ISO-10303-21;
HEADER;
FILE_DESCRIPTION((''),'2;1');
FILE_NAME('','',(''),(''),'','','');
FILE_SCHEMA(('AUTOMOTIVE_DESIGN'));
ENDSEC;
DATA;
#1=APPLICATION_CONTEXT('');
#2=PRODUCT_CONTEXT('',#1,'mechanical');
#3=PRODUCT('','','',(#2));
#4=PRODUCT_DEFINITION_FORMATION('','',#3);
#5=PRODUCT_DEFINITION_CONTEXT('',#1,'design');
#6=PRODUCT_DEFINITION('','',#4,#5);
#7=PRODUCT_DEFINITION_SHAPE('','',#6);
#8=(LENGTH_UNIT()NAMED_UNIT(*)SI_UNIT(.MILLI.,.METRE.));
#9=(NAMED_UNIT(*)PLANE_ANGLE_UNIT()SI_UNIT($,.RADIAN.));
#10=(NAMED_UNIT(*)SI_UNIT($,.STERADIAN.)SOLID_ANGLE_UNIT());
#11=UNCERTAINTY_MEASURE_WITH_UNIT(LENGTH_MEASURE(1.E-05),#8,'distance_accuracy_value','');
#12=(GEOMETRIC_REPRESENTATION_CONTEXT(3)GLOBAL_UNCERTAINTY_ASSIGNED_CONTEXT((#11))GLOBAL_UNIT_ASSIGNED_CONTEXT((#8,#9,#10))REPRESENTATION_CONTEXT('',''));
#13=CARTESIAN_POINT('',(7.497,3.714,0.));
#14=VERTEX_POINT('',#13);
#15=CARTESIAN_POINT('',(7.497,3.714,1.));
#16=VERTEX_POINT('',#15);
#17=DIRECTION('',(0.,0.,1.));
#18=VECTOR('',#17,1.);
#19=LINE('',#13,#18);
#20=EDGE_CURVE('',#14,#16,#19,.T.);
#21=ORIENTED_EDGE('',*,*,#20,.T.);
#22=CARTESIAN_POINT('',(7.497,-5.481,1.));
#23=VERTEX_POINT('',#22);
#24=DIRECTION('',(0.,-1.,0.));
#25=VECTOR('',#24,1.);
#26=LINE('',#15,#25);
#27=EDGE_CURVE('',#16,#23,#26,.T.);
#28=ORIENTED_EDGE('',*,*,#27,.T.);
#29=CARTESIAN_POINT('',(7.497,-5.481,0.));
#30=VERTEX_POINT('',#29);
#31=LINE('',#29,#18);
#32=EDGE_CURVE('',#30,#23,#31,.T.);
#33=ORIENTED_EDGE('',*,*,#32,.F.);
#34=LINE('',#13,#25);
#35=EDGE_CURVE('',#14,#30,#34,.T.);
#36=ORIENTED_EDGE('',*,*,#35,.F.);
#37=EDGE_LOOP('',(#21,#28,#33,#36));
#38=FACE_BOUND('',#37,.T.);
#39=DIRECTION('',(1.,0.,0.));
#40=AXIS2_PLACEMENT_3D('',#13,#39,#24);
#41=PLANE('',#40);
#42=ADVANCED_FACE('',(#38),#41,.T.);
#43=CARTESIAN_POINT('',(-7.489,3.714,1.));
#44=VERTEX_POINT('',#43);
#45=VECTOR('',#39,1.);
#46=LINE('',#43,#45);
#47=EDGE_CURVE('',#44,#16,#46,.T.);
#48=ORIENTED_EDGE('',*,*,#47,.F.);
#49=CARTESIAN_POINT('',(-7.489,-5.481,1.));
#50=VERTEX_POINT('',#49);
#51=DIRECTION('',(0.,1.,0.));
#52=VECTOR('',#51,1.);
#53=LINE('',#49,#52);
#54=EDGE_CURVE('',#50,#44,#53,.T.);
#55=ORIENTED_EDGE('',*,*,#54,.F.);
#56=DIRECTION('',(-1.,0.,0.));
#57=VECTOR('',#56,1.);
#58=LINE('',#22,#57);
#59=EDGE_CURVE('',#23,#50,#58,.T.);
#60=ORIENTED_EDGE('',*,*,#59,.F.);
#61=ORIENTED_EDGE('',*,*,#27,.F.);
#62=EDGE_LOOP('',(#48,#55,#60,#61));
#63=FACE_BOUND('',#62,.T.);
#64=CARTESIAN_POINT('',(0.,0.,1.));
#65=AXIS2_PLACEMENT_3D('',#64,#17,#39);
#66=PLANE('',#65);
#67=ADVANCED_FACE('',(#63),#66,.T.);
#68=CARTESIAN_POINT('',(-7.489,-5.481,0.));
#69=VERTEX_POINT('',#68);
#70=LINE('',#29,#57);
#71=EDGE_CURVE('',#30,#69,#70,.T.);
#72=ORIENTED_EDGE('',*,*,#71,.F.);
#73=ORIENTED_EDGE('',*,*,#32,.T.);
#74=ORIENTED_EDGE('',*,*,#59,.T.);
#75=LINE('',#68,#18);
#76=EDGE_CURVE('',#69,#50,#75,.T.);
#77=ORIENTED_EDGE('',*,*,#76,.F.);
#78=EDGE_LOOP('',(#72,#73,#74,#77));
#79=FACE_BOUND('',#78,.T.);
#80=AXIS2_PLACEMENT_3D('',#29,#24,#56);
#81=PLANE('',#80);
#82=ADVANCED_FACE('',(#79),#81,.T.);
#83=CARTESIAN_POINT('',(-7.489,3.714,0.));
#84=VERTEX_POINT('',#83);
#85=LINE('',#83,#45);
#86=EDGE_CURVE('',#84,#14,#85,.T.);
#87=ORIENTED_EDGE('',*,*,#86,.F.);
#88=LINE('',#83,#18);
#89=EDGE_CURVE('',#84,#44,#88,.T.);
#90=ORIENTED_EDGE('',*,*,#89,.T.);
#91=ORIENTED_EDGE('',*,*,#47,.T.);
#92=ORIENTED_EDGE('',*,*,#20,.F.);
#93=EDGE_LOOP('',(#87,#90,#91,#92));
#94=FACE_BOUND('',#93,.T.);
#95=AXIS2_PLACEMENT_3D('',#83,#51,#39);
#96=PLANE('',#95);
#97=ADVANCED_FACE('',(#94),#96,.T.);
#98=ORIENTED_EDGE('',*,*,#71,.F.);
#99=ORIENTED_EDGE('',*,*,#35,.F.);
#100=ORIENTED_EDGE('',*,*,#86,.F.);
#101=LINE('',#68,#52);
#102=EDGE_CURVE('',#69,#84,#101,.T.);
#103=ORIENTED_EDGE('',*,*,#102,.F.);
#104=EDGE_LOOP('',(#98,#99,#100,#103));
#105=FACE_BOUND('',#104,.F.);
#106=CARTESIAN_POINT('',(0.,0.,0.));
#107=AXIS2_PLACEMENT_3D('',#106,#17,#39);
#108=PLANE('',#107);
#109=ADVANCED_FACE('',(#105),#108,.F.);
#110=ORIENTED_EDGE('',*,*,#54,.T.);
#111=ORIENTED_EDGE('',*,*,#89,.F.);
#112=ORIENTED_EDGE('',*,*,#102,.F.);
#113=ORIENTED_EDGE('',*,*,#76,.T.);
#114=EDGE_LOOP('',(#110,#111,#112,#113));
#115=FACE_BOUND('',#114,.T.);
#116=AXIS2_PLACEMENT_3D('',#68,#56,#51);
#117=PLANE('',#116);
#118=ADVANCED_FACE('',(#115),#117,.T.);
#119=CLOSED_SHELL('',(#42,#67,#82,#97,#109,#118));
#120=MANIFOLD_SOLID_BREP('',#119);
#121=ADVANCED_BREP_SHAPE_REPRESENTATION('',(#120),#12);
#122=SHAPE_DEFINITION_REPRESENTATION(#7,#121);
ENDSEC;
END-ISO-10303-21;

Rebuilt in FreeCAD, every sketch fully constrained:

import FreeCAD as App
import Part
import Sketcher

V = App.Vector
Q = App.Units.Quantity

doc = App.newDocument("Part")
body = doc.addObject("PartDesign::Body", "Body")

sketch1 = body.newObject("Sketcher::SketchObject", "Sketch")
sketch1.AttachmentSupport = (doc.getObject("XY_Plane"), [""])
sketch1.MapMode = "FlatFace"
sketch1.addGeometry([
    Part.LineSegment(V(7, 4, 0), V(-7, 4, 0)),
    Part.LineSegment(V(-7, 4, 0), V(-7, -5, 0)),
    Part.LineSegment(V(-7, -5, 0), V(7, -5, 0)),
    Part.LineSegment(V(7, -5, 0), V(7, 4, 0)),
], False)
sketch1.addConstraint([
    Sketcher.Constraint("Coincident", 0, 2, 1, 1),
    Sketcher.Constraint("Coincident", 1, 2, 2, 1),
    Sketcher.Constraint("Coincident", 2, 2, 3, 1),
    Sketcher.Constraint("Coincident", 3, 2, 0, 1),
    Sketcher.Constraint("Horizontal", 0),
    Sketcher.Constraint("Vertical", 1),
    Sketcher.Constraint("Horizontal", 2),
    Sketcher.Constraint("Vertical", 3),
    Sketcher.Constraint("DistanceX", 0, 2, 0, 1, Q("0.59 in")),
    Sketcher.Constraint("DistanceY", 1, 2, 1, 1, Q("0.362 in")),
    Sketcher.Constraint("DistanceX", 0, 2, -1, 1, Q("7.489 mm")),
    Sketcher.Constraint("DistanceY", -1, 1, 0, 2, Q("3.714 mm")),
])
pad1 = body.newObject("PartDesign::Pad", "Pad")
pad1.Profile = sketch1
pad1.Length = 1

doc.recompute()
